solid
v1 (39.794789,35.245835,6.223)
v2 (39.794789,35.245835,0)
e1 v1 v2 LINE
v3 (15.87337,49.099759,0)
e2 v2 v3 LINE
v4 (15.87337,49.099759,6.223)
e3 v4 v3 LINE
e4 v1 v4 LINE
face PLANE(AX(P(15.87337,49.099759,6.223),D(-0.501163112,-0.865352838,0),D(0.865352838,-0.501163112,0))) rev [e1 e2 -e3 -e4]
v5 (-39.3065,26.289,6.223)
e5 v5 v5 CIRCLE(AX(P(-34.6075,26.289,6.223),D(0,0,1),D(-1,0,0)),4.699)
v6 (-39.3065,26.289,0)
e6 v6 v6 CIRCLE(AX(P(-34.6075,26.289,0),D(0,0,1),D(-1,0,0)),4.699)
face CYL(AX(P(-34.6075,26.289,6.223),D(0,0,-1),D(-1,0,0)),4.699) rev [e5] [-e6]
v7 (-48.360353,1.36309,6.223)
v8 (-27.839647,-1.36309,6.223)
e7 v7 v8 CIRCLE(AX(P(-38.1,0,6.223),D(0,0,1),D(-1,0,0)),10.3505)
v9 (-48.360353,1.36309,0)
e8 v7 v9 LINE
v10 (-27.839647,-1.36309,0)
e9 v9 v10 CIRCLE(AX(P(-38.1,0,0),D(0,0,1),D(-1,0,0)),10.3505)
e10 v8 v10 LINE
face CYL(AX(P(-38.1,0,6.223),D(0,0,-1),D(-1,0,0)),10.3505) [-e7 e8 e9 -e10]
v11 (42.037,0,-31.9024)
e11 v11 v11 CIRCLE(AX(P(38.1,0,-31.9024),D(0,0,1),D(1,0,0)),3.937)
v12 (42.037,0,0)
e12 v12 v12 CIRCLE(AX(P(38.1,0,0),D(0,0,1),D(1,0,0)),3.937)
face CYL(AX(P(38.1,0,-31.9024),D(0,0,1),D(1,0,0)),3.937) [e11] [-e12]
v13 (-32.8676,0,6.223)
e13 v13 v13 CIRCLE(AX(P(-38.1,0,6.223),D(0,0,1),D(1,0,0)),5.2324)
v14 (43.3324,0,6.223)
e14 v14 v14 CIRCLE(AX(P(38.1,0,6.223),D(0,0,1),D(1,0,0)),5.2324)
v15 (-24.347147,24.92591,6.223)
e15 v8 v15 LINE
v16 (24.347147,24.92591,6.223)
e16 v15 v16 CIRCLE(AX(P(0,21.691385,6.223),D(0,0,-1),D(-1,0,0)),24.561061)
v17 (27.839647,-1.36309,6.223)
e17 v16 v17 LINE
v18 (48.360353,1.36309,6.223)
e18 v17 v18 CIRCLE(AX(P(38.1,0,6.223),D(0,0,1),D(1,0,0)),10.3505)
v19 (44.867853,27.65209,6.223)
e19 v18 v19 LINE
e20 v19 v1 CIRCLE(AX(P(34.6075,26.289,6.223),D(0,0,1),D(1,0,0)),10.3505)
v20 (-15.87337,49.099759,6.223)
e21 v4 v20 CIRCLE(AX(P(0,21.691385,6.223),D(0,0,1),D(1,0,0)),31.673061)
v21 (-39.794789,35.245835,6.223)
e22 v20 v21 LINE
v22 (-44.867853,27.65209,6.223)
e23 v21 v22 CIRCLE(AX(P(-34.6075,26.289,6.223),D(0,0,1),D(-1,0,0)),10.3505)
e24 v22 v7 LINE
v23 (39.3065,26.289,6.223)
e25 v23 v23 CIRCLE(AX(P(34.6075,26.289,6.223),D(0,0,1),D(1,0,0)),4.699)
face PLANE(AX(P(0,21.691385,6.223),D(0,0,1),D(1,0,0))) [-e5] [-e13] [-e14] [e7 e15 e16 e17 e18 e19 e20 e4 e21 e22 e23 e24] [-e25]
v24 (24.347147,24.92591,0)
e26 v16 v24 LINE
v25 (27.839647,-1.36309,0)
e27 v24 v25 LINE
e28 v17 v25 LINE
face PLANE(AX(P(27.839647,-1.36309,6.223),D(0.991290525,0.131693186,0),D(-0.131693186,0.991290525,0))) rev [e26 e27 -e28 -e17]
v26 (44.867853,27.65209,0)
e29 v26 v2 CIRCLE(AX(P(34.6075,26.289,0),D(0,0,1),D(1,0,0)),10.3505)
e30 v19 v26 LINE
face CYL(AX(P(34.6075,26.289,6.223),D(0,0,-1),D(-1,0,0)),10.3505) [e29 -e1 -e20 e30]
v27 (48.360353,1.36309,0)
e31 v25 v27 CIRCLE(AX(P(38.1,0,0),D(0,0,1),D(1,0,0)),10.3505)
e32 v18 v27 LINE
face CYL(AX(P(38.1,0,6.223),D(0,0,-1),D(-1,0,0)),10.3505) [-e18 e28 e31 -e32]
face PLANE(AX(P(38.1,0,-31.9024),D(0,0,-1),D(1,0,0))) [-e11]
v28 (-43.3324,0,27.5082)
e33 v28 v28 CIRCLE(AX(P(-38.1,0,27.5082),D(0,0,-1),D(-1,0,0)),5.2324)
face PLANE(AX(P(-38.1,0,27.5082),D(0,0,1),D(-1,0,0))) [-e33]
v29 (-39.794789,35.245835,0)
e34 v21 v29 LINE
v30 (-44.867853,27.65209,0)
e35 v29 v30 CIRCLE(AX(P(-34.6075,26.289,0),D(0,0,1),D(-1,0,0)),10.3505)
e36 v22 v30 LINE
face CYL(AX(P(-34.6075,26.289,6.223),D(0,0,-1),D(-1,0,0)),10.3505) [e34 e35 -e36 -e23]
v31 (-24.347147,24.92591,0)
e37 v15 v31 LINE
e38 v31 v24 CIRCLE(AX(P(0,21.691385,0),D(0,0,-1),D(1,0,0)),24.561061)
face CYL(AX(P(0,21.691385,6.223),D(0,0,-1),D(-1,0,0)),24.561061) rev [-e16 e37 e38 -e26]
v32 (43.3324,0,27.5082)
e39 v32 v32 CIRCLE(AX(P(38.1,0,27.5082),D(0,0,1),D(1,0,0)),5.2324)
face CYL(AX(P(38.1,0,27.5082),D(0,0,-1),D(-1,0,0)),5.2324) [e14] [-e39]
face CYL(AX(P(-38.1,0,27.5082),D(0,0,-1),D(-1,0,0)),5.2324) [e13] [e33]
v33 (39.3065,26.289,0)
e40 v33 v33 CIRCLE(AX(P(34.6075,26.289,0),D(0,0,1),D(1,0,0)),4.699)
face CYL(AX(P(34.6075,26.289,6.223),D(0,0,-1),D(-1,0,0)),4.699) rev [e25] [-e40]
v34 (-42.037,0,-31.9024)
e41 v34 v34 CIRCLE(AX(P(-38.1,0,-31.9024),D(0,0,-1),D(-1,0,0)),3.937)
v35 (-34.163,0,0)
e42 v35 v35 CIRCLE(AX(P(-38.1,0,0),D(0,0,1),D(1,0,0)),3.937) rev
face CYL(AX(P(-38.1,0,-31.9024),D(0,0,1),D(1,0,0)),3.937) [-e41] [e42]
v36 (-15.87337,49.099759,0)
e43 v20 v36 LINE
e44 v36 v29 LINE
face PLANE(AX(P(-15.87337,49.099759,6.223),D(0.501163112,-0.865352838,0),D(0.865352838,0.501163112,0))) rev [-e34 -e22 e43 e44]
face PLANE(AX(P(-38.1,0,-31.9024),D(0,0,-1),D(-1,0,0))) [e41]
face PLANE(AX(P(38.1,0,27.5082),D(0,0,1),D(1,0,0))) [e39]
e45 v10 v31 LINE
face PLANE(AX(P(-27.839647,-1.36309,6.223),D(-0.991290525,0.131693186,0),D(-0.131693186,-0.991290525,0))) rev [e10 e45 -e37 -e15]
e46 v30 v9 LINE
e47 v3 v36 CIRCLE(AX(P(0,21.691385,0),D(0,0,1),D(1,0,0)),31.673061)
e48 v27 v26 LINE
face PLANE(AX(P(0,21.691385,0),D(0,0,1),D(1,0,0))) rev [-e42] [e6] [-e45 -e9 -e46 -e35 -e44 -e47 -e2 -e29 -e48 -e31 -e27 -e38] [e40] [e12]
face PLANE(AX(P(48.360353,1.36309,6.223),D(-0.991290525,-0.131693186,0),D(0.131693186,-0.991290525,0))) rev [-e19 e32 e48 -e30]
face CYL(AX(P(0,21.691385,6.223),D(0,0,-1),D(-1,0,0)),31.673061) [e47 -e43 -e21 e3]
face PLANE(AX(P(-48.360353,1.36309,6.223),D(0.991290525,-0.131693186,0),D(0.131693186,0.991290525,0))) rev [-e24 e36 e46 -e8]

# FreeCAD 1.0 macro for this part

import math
import FreeCAD as App
import Part
import Sketcher
from FreeCAD import Vector
Q = App.Units.Quantity

doc = App.newDocument("Part")
body = doc.addObject("PartDesign::Body", "Body")

# Sketch on XY plane
sketch1 = body.newObject("Sketcher::SketchObject", "Sketch")
sketch1.AttachmentSupport = (doc.getObject("XY_Plane"), [""])
sketch1.MapMode = "FlatFace"
sketch1.addGeometry([
    Part.LineSegment(Vector(24.3, 24.9, 0), Vector(27.8, -1.4, 0)),  # 0
    Part.ArcOfCircle(Part.Circle(Vector(38.1, 0, 0), Vector(0, 0, 1), 10.4), math.radians(-172), math.radians(8)),  # 1
    Part.LineSegment(Vector(48.4, 1.4, 0), Vector(44.9, 27.7, 0)),  # 2
    Part.ArcOfCircle(Part.Circle(Vector(34.6, 26.3, 0), Vector(0, 0, 1), 10.4), math.radians(8), math.radians(60)),  # 3
    Part.LineSegment(Vector(39.8, 35.2, 0), Vector(15.9, 49.1, 0)),  # 4
    Part.ArcOfCircle(Part.Circle(Vector(0, 21.7, 0), Vector(0, 0, 1), 31.7), math.radians(60), math.radians(120)),  # 5
    Part.LineSegment(Vector(-15.9, 49.1, 0), Vector(-39.8, 35.2, 0)),  # 6
    Part.ArcOfCircle(Part.Circle(Vector(-34.6, 26.3, 0), Vector(0, 0, 1), 10.4), math.radians(120), math.radians(172)),  # 7
    Part.LineSegment(Vector(-44.9, 27.7, 0), Vector(-48.4, 1.4, 0)),  # 8
    Part.ArcOfCircle(Part.Circle(Vector(-38.1, 0, 0), Vector(0, 0, 1), 10.4), math.radians(172), math.radians(352)),  # 9
    Part.LineSegment(Vector(-27.8, -1.4, 0), Vector(-24.3, 24.9, 0)),  # 10
    Part.ArcOfCircle(Part.Circle(Vector(0, 21.7, 0), Vector(0, 0, 1), 24.6), math.radians(90), math.radians(172)),  # 11
    Part.ArcOfCircle(Part.Circle(Vector(0, 21.7, 0), Vector(0, 0, 1), 24.6), math.radians(8), math.radians(90)),  # 12
    Part.Circle(Vector(34.6, 26.3, 0), Vector(0, 0, 1), 4.7),  # 13
    Part.Circle(Vector(-34.6, 26.3, 0), Vector(0, 0, 1), 4.7),  # 14
], False)
sketch1.addConstraint([
    Sketcher.Constraint("Tangent", 0, 2, 1, 1),
    Sketcher.Constraint("Tangent", 1, 2, 2, 1),
    Sketcher.Constraint("Tangent", 2, 2, 3, 1),
    Sketcher.Constraint("Tangent", 3, 2, 4, 1),
    Sketcher.Constraint("Tangent", 4, 2, 5, 1),
    Sketcher.Constraint("Tangent", 5, 2, 6, 1),
    Sketcher.Constraint("Tangent", 6, 2, 7, 1),
    Sketcher.Constraint("Tangent", 7, 2, 8, 1),
    Sketcher.Constraint("Tangent", 8, 2, 9, 1),
    Sketcher.Constraint("Tangent", 9, 2, 10, 1),
    Sketcher.Constraint("Tangent", 10, 2, 11, 2),
    Sketcher.Constraint("Tangent", 11, 1, 12, 2),
    Sketcher.Constraint("Tangent", 12, 1, 0, 1),
    Sketcher.Constraint("Coincident", 11, 3, 5, 3),
    Sketcher.Constraint("Coincident", 13, 3, 3, 3),
    Sketcher.Constraint("Coincident", 14, 3, 7, 3),
    Sketcher.Constraint("Equal", 1, 3),
    Sketcher.Constraint("Equal", 3, 7),
    Sketcher.Constraint("Equal", 7, 9),
    Sketcher.Constraint("Equal", 11, 12),
    Sketcher.Constraint("Equal", 13, 14),
    Sketcher.Constraint("Symmetric", 1, 3, 9, 3, -1, 1),
    Sketcher.Constraint("Symmetric", 3, 3, 7, 3, -2),
    Sketcher.Constraint("Symmetric", 0, 2, 9, 2, -2),
    Sketcher.Constraint("PointOnObject", 11, 1, -2),
    Sketcher.Constraint("Parallel", 0, 2),
    Sketcher.Constraint("Equal", 0, 2),
    Sketcher.Constraint("Diameter", 13, Q("0.37 in")),
    Sketcher.Constraint("DistanceX", 9, 3, 1, 3, Q("3 in")),
    Sketcher.Constraint("Radius", 1, Q("0.4075 in")),
    Sketcher.Constraint("DistanceY", -1, 1, 3, 3, Q("1.035 in")),
    Sketcher.Constraint("Radius", 5, Q("31.673061 mm")),
    Sketcher.Constraint("Radius", 11, Q("24.561061 mm")),
])
pad1 = body.newObject("PartDesign::Pad", "Pad")
pad1.Profile = sketch1
pad1.Length = Q("0.245 in")

# Sketch on XY plane
sketch2 = body.newObject("Sketcher::SketchObject", "Sketch001")
sketch2.AttachmentSupport = (doc.getObject("XY_Plane"), [""])
sketch2.MapMode = "FlatFace"
sketch2.AttachmentOffset = App.Placement(Vector(0, 0, 0.245 * 25.4), App.Rotation())
sketch2.addGeometry(Part.Circle(Vector(38, 0, 0), Vector(0, 0, 1), 5), False)
sketch2.addConstraint([
    Sketcher.Constraint("PointOnObject", 0, 3, -1),
    Sketcher.Constraint("Diameter", 0, Q("0.412 in")),
    Sketcher.Constraint("DistanceX", -1, 1, 0, 3, Q("1.5 in")),
])
pad2 = body.newObject("PartDesign::Pad", "Pad001")
pad2.Profile = sketch2
pad2.Length = Q("0.838 in")
doc.recompute()

mirrored = body.newObject("PartDesign::Mirrored", "Mirrored")
mirrored.Originals = [pad2]
mirrored.MirrorPlane = (doc.getObject("YZ_Plane"), [""])
body.Tip = mirrored

# Sketch on XY plane
sketch3 = body.newObject("Sketcher::SketchObject", "Sketch002")
sketch3.AttachmentSupport = (doc.getObject("XY_Plane"), [""])
sketch3.MapMode = "FlatFace"
sketch3.addGeometry(Part.Circle(Vector(-38.1, 0, 0), Vector(0, 0, 1), 3.9), False)
sketch3.addConstraint([
    Sketcher.Constraint("PointOnObject", 0, 3, -1),
    Sketcher.Constraint("Diameter", 0, Q("0.31 in")),
    Sketcher.Constraint("DistanceX", 0, 3, -1, 1, Q("1.5 in")),
])
pad3 = body.newObject("PartDesign::Pad", "Pad002")
pad3.Profile = sketch3
pad3.Length = Q("1.256 in")
pad3.Reversed = True
doc.recompute()

mirrored2 = body.newObject("PartDesign::Mirrored", "Mirrored001")
mirrored2.Originals = [pad3]
mirrored2.MirrorPlane = (doc.getObject("YZ_Plane"), [""])
body.Tip = mirrored2

doc.recompute()
